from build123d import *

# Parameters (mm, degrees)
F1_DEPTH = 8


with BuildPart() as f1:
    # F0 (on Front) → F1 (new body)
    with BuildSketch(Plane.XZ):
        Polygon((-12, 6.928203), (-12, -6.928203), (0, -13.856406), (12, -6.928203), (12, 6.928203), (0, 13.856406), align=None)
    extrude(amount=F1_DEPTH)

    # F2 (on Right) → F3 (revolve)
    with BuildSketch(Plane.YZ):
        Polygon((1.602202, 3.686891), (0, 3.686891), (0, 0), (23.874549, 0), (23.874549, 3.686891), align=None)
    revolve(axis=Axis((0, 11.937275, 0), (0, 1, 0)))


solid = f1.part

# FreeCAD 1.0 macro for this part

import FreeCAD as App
import Part
import Sketcher

V = App.Vector
Q = App.Units.Quantity

doc = App.newDocument("Part")
body = doc.addObject("PartDesign::Body", "Body")

sketch1 = body.newObject("Sketcher::SketchObject", "Sketch")
sketch1.AttachmentSupport = (doc.getObject("XZ_Plane"), [""])
sketch1.MapMode = "FlatFace"
sketch1.addGeometry([
    Part.LineSegment(V(-12, 7, 0), V(-12, -7, 0)),
    Part.LineSegment(V(-12, -7, 0), V(0, -14, 0)),
    Part.LineSegment(V(0, -14, 0), V(12, -7, 0)),
    Part.LineSegment(V(12, -7, 0), V(12, 7, 0)),
    Part.LineSegment(V(12, 7, 0), V(0, 14, 0)),
    Part.LineSegment(V(0, 14, 0), V(-12, 7, 0)),
], False)
sketch1.addConstraint([
    Sketcher.Constraint("Coincident", 0, 2, 1, 1),
    Sketcher.Constraint("Coincident", 1, 2, 2, 1),
    Sketcher.Constraint("Coincident", 2, 2, 3, 1),
    Sketcher.Constraint("Coincident", 3, 2, 4, 1),
    Sketcher.Constraint("Coincident", 4, 2, 5, 1),
    Sketcher.Constraint("Coincident", 5, 2, 0, 1),
    Sketcher.Constraint("Vertical", 0),
    Sketcher.Constraint("Vertical", 3),
    Sketcher.Constraint("Symmetric", 0, 2, 3, 2, -1, 1),
    Sketcher.Constraint("Symmetric", 1, 2, 4, 2, -1, 1),
    Sketcher.Constraint("PointOnObject", 1, 2, -2),
    Sketcher.Constraint("Parallel", 2, 5),
    Sketcher.Constraint("Horizontal", 0, 2, 2, 2),
    Sketcher.Constraint("Angle", 1, Q("-29.999999 deg")),
    Sketcher.Constraint("DistanceX", 0, 2, -1, 1, Q("12 mm")),
    Sketcher.Constraint("DistanceY", 0, 2, 0, 1, Q("13.856406 mm")),
])
pad1 = body.newObject("PartDesign::Pad", "Pad")
pad1.Profile = sketch1
pad1.Length = 8

sketch2 = body.newObject("Sketcher::SketchObject", "Sketch001")
sketch2.AttachmentSupport = (doc.getObject("YZ_Plane"), [""])
sketch2.MapMode = "FlatFace"
sketch2.addGeometry([
    Part.LineSegment(V(0, 3.7, 0), V(0, 0, 0)),
    Part.LineSegment(V(0, 0, 0), V(23.9, 0, 0)),
    Part.LineSegment(V(23.9, 0, 0), V(23.9, 3.7, 0)),
    Part.LineSegment(V(23.9, 3.7, 0), V(0, 3.7, 0)),
], False)
sketch2.addConstraint([
    Sketcher.Constraint("Coincident", 0, 2, 1, 1),
    Sketcher.Constraint("Coincident", 1, 2, 2, 1),
    Sketcher.Constraint("Coincident", 2, 2, 3, 1),
    Sketcher.Constraint("Coincident", 3, 2, 0, 1),
    Sketcher.Constraint("Vertical", 0),
    Sketcher.Constraint("Horizontal", 1),
    Sketcher.Constraint("Vertical", 2),
    Sketcher.Constraint("Horizontal", 3),
    Sketcher.Constraint("Coincident", 0, 2, -1, 1),
    Sketcher.Constraint("DistanceX", 1, 1, 1, 2, Q("23.874549 mm")),
    Sketcher.Constraint("DistanceY", 0, 2, 0, 1, Q("3.686891 mm")),
])
revolution = body.newObject("PartDesign::Revolution", "Revolution")
revolution.Profile = sketch2
revolution.ReferenceAxis = (sketch2, ["H_Axis"])
revolution.Angle = 360

doc.recompute()
